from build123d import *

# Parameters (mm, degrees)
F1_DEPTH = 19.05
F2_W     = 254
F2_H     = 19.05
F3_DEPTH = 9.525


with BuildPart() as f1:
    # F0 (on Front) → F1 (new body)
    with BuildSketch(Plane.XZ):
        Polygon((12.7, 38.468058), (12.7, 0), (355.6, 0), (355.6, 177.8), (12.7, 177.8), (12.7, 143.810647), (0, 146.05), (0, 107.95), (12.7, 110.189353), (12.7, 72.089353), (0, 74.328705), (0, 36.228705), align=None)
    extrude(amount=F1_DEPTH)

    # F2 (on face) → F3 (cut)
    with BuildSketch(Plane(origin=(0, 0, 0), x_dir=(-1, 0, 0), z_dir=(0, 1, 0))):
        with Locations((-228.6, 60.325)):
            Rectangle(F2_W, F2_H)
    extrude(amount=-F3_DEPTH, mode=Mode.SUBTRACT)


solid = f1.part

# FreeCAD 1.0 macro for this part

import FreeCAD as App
import Part
import Sketcher
Q = App.Units.Quantity

doc = App.newDocument("Part")
params = doc.addObject("Spreadsheet::Sheet", "Params")
for row, (alias, value) in enumerate([
    ("sketch1_height", "7 in"),
    ("sketch1_width", "13.5 in"),
    ("sketch1_height2", "1.5 in"),
    ("pad1_length", "0.75 in"),
    ("sketch2_width", "10 in"),
    ("sketch2_height", "0.75 in"),
    ("pocket1_length", "0.375 in"),
], start=1):
    params.set(f"A{row}", alias)
    params.set(f"B{row}", "=" + value)
    params.setAlias(f"B{row}", alias)

body = doc.addObject("PartDesign::Body", "Body")

sketch1 = body.newObject("Sketcher::SketchObject", "Sketch")
sketch1.AttachmentSupport = (doc.getObject("XZ_Plane"), [""])
sketch1.MapMode = "FlatFace"
sketch1.addGeometry(Part.LineSegment(App.Vector(13, 38, 0), App.Vector(13, 0, 0)), False)
sketch1.addGeometry(Part.LineSegment(App.Vector(13, 0, 0), App.Vector(356, 0, 0)), False)
sketch1.addGeometry(Part.LineSegment(App.Vector(356, 0, 0), App.Vector(356, 178, 0)), False)
sketch1.addGeometry(Part.LineSegment(App.Vector(356, 178, 0), App.Vector(13, 178, 0)), False)
sketch1.addGeometry(Part.LineSegment(App.Vector(13, 178, 0), App.Vector(13, 144, 0)), False)
sketch1.addGeometry(Part.LineSegment(App.Vector(13, 144, 0), App.Vector(0, 146, 0)), False)
sketch1.addGeometry(Part.LineSegment(App.Vector(0, 146, 0), App.Vector(0, 108, 0)), False)
sketch1.addGeometry(Part.LineSegment(App.Vector(0, 108, 0), App.Vector(13, 110, 0)), False)
sketch1.addGeometry(Part.LineSegment(App.Vector(13, 110, 0), App.Vector(13, 72, 0)), False)
sketch1.addGeometry(Part.LineSegment(App.Vector(13, 72, 0), App.Vector(0, 74, 0)), False)
sketch1.addGeometry(Part.LineSegment(App.Vector(0, 74, 0), App.Vector(0, 36, 0)), False)
sketch1.addGeometry(Part.LineSegment(App.Vector(0, 36, 0), App.Vector(13, 38, 0)), False)
sketch1.addConstraint(Sketcher.Constraint("Coincident", 0, 2, 1, 1))
sketch1.addConstraint(Sketcher.Constraint("Coincident", 1, 2, 2, 1))
sketch1.addConstraint(Sketcher.Constraint("Coincident", 2, 2, 3, 1))
sketch1.addConstraint(Sketcher.Constraint("Coincident", 3, 2, 4, 1))
sketch1.addConstraint(Sketcher.Constraint("Coincident", 4, 2, 5, 1))
sketch1.addConstraint(Sketcher.Constraint("Coincident", 5, 2, 6, 1))
sketch1.addConstraint(Sketcher.Constraint("Coincident", 6, 2, 7, 1))
sketch1.addConstraint(Sketcher.Constraint("Coincident", 7, 2, 8, 1))
sketch1.addConstraint(Sketcher.Constraint("Coincident", 8, 2, 9, 1))
sketch1.addConstraint(Sketcher.Constraint("Coincident", 9, 2, 10, 1))
sketch1.addConstraint(Sketcher.Constraint("Coincident", 10, 2, 11, 1))
sketch1.addConstraint(Sketcher.Constraint("Coincident", 11, 2, 0, 1))
sketch1.addConstraint(Sketcher.Constraint("Vertical", 0))
sketch1.addConstraint(Sketcher.Constraint("Horizontal", 1))
sketch1.addConstraint(Sketcher.Constraint("Vertical", 2))
sketch1.addConstraint(Sketcher.Constraint("Horizontal", 3))
sketch1.addConstraint(Sketcher.Constraint("Vertical", 4))
sketch1.addConstraint(Sketcher.Constraint("Vertical", 6))
sketch1.addConstraint(Sketcher.Constraint("Vertical", 8))
sketch1.addConstraint(Sketcher.Constraint("Vertical", 10))
sketch1.addConstraint(Sketcher.Constraint("PointOnObject", 0, 2, -1))
sketch1.addConstraint(Sketcher.Constraint("PointOnObject", 5, 2, -2))
sketch1.addConstraint(Sketcher.Constraint("PointOnObject", 9, 2, -2))
sketch1.addConstraint(Sketcher.Constraint("Parallel", 5, 9))
sketch1.addConstraint(Sketcher.Constraint("Parallel", 7, 11))
sketch1.addConstraint(Sketcher.Constraint("Vertical", 0, 2, 3, 2))
sketch1.addConstraint(Sketcher.Constraint("Vertical", 4, 2, 7, 2))
sketch1.addConstraint(Sketcher.Constraint("Equal", 6, 8))
sketch1.addConstraint(Sketcher.Constraint("Equal", 8, 10))
sketch1.addConstraint(Sketcher.Constraint("Equal", 5, 7))
sketch1.addConstraint(Sketcher.Constraint("DistanceY", 2, 1, 2, 2, Q("7 in")))
sketch1.addConstraint(Sketcher.Constraint("DistanceX", 1, 1, 1, 2, Q("13.5 in")))
sketch1.addConstraint(Sketcher.Constraint("DistanceY", 6, 2, 6, 1, Q("1.5 in")))
sketch1.addConstraint(Sketcher.Constraint("DistanceX", -1, 1, 1, 2, Q("14 in")))
sketch1.addConstraint(Sketcher.Constraint("Angle", 5, Q("169.999998 deg")))
sketch1.addConstraint(Sketcher.Constraint("DistanceY", -1, 1, 5, 2, Q("5.75 in")))
sketch1.setExpression("Constraints[30]", "Params.sketch1_height")
sketch1.setExpression("Constraints[31]", "Params.sketch1_width")
sketch1.setExpression("Constraints[32]", "Params.sketch1_height2")
pad1 = body.newObject("PartDesign::Pad", "Pad")
pad1.Profile = sketch1
pad1.setExpression("Length", "Params.pad1_length")

sketch2 = body.newObject("Sketcher::SketchObject", "Sketch001")
sketch2.AttachmentSupport = (doc.getObject("XZ_Plane"), [""])
sketch2.MapMode = "FlatFace"
sketch2.addGeometry(Part.LineSegment(App.Vector(356, 70, 0), App.Vector(356, 51, 0)), False)
sketch2.addGeometry(Part.LineSegment(App.Vector(356, 51, 0), App.Vector(102, 51, 0)), False)
sketch2.addGeometry(Part.LineSegment(App.Vector(102, 51, 0), App.Vector(102, 70, 0)), False)
sketch2.addGeometry(Part.LineSegment(App.Vector(102, 70, 0), App.Vector(356, 70, 0)), False)
sketch2.addConstraint(Sketcher.Constraint("Coincident", 0, 2, 1, 1))
sketch2.addConstraint(Sketcher.Constraint("Coincident", 1, 2, 2, 1))
sketch2.addConstraint(Sketcher.Constraint("Coincident", 2, 2, 3, 1))
sketch2.addConstraint(Sketcher.Constraint("Coincident", 3, 2, 0, 1))
sketch2.addConstraint(Sketcher.Constraint("Vertical", 0))
sketch2.addConstraint(Sketcher.Constraint("Horizontal", 1))
sketch2.addConstraint(Sketcher.Constraint("Vertical", 2))
sketch2.addConstraint(Sketcher.Constraint("Horizontal", 3))
sketch2.addConstraint(Sketcher.Constraint("DistanceX", 1, 2, 1, 1, Q("10 in")))
sketch2.addConstraint(Sketcher.Constraint("DistanceX", -1, 1, 0, 2, Q("14 in")))
sketch2.addConstraint(Sketcher.Constraint("DistanceY", -1, 1, 0, 2, Q("2 in")))
sketch2.addConstraint(Sketcher.Constraint("DistanceY", 0, 2, 0, 1, Q("0.75 in")))
sketch2.setExpression("Constraints[8]", "Params.sketch2_width")
sketch2.setExpression("Constraints[11]", "Params.sketch2_height")
pocket1 = body.newObject("PartDesign::Pocket", "Pocket")
pocket1.Profile = sketch2
pocket1.setExpression("Length", "Params.pocket1_length")
pocket1.Reversed = True

doc.recompute()
